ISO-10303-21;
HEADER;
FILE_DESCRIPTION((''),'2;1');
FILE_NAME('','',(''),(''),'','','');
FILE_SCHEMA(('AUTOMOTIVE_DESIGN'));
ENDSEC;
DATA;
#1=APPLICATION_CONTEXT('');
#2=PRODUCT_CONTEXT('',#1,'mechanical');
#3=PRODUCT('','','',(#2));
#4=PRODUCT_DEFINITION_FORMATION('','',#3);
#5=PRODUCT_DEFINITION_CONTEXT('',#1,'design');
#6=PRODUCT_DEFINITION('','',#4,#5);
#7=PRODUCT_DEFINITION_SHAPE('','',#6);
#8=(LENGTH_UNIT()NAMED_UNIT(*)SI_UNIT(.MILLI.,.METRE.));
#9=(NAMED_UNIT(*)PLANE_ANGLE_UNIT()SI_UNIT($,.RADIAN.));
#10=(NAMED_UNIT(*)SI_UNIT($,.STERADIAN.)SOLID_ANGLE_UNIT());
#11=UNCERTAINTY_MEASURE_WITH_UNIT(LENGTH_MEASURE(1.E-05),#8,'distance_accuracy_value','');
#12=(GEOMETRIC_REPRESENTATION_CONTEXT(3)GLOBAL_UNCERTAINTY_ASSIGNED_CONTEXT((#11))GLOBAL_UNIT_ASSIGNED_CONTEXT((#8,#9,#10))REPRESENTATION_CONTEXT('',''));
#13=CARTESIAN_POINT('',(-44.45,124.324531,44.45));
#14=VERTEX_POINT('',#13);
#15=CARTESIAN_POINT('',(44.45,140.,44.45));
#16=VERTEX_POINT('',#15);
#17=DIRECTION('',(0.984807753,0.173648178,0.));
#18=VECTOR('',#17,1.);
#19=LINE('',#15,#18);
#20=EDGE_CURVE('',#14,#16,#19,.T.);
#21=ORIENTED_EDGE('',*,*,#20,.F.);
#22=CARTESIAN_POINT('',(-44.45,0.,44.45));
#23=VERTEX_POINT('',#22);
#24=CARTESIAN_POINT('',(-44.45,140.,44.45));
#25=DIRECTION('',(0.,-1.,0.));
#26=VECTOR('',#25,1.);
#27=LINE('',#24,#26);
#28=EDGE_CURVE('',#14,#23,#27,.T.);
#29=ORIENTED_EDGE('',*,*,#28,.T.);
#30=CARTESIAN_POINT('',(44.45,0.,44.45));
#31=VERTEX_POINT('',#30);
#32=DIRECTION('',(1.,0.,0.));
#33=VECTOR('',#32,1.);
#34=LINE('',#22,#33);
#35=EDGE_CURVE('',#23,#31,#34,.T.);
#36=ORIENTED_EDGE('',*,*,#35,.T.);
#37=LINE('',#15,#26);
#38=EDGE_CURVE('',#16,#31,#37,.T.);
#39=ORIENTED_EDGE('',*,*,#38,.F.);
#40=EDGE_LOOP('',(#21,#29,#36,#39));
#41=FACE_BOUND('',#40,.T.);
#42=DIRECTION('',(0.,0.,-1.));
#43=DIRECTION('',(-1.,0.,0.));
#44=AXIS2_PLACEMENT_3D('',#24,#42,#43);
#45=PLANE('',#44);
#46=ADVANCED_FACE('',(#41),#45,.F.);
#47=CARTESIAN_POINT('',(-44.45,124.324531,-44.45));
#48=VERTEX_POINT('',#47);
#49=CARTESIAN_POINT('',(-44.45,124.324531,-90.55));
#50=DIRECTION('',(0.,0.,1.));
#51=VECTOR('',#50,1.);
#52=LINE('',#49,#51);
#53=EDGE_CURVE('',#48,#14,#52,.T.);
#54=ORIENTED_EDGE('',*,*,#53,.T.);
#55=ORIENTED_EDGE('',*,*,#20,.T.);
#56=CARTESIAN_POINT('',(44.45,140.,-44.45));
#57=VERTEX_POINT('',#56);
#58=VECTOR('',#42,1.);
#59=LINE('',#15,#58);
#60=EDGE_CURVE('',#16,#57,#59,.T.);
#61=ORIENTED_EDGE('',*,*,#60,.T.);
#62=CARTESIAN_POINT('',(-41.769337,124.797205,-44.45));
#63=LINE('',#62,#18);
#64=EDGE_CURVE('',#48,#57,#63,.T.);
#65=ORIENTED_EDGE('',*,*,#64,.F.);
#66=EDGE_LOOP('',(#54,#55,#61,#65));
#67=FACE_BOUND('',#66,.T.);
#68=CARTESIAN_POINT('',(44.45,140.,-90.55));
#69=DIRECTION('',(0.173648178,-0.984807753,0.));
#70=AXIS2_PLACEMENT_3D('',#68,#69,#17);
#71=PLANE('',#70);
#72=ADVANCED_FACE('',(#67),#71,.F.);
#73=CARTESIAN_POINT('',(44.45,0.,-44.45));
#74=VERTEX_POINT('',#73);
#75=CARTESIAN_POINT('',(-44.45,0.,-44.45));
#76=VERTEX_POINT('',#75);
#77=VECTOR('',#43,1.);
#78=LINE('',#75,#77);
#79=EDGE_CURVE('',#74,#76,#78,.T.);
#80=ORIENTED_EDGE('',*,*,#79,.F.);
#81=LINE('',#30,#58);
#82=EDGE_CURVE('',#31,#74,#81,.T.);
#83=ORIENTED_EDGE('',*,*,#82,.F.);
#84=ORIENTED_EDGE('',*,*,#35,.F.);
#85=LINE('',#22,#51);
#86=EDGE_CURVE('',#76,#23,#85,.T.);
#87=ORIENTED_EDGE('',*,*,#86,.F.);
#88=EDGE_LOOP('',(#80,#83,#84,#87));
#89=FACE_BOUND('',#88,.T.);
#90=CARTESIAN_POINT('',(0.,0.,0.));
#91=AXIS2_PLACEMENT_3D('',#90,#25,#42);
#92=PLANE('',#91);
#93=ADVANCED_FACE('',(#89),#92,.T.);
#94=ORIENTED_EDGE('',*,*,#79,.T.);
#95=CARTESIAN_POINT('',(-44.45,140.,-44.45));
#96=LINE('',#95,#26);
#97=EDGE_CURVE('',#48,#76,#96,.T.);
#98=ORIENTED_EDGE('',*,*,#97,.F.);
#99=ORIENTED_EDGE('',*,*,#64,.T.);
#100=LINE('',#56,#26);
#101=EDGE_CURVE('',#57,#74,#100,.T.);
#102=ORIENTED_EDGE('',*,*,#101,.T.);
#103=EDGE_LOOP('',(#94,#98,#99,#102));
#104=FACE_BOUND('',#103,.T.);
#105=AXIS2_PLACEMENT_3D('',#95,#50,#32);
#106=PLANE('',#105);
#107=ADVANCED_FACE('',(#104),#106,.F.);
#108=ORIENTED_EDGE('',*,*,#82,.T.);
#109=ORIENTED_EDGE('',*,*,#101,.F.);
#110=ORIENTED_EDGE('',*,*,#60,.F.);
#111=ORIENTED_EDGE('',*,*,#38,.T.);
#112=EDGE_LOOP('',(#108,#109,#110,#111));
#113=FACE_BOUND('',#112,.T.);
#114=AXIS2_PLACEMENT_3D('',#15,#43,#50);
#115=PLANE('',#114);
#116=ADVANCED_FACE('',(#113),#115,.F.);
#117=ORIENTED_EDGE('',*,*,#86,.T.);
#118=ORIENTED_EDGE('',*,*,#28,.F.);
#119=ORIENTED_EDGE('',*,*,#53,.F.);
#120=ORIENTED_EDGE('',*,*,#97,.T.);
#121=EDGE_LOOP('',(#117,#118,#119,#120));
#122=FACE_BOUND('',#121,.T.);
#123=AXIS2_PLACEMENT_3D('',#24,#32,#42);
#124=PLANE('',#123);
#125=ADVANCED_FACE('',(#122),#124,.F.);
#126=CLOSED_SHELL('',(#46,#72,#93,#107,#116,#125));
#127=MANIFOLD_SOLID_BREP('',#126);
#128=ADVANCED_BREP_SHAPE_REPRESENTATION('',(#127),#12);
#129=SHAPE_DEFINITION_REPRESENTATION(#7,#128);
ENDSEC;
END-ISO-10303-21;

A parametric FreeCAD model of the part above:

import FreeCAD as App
import Part
import Sketcher
from FreeCAD import Vector
Q = App.Units.Quantity


def add_polygon(sketch, points):
    """Adds a closed chain of lines whose ends are joined by coincident constraints."""
    first, n = sketch.GeometryCount, len(points)
    for a, b in zip(points, points[1:] + points[:1]):
        sketch.addGeometry(Part.LineSegment(App.Vector(*a, 0), App.Vector(*b, 0)), False)
    for i in range(n):
        sketch.addConstraint(Sketcher.Constraint("Coincident", first + i, 2, first + (i + 1) % n, 1))

doc = App.newDocument("Part")
body = doc.addObject("PartDesign::Body", "Body")

sketch1 = body.newObject("Sketcher::SketchObject", "Sketch")
sketch1.AttachmentSupport = (doc.getObject("XZ_Plane"), [""])
sketch1.MapMode = "FlatFace"
add_polygon(sketch1, [(-44.45, -44.45), (-44.45, 44.45), (44.45, 44.45), (44.45, -44.45)])
sketch1.addConstraint([
    Sketcher.Constraint("Vertical", 0),
    Sketcher.Constraint("Horizontal", 1),
    Sketcher.Constraint("Vertical", 2),
    Sketcher.Constraint("Horizontal", 3),
    Sketcher.Constraint("Symmetric", 0, 2, 2, 2, -1, 1),
    Sketcher.Constraint("Equal", 3, 0),
    Sketcher.Constraint("DistanceX", 1, 1, 1, 2, Q("88.9 mm")),
])
pad1 = body.newObject("PartDesign::Pad", "Pad")
pad1.Profile = sketch1
pad1.Length = 140
pad1.Reversed = True

sketch2 = body.newObject("Sketcher::SketchObject", "Sketch001")
sketch2.AttachmentSupport = (doc.getObject("XY_Plane"), [""])
sketch2.MapMode = "FlatFace"
sketch2.AttachmentOffset = App.Placement(Vector(0, 0, 44.45), App.Rotation())
add_polygon(sketch2, [(-44.45, 124.324531), (44.45, 140), (-44.45, 140)])
sketch2.addConstraint([
    Sketcher.Constraint("Horizontal", 1),
    Sketcher.Constraint("Vertical", 2),
    Sketcher.Constraint("Angle", 0, Q("10 deg")),
    Sketcher.Constraint("DistanceX", 1, 2, 1, 1, Q("88.9 mm")),
    Sketcher.Constraint("DistanceY", -1, 1, 0, 2, Q("140 mm")),
    Sketcher.Constraint("DistanceX", -1, 1, 0, 2, Q("44.45 mm")),
])
pocket1 = body.newObject("PartDesign::Pocket", "Pocket")
pocket1.Profile = sketch2
pocket1.Length = 135

doc.recompute()
